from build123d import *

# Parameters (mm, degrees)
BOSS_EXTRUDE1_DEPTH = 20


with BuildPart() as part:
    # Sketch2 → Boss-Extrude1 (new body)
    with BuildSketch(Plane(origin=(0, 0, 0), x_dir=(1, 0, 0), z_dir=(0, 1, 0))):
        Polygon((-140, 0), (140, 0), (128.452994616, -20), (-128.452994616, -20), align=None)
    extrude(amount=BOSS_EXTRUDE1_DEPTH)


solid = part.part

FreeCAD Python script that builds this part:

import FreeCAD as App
import Part
import Sketcher
from FreeCAD import Vector
Q = App.Units.Quantity

doc = App.newDocument("Part")
params = doc.addObject("Spreadsheet::Sheet", "Params")
for row, (alias, value) in enumerate([
    ("sketch1_width", "280 mm"),
    ("pad1_length", "20 mm"),
], start=1):
    params.set(f"A{row}", alias)
    params.set(f"B{row}", "=" + value)
    params.setAlias(f"B{row}", alias)

body = doc.addObject("PartDesign::Body", "Body")

sketch1 = body.newObject("Sketcher::SketchObject", "Sketch")
sketch1.AttachmentSupport = (doc.getObject("XZ_Plane"), [""])
sketch1.MapMode = "FlatFace"
sketch1.addGeometry([
    Part.LineSegment(Vector(140, 0, 0), Vector(-140, 0, 0)),
    Part.LineSegment(Vector(-140, 0, 0), Vector(-128, 20, 0)),
    Part.LineSegment(Vector(-128, 20, 0), Vector(128, 20, 0)),
    Part.LineSegment(Vector(128, 20, 0), Vector(140, 0, 0)),
], False)
sketch1.addConstraint([
    Sketcher.Constraint("Coincident", 0, 2, 1, 1),
    Sketcher.Constraint("Coincident", 1, 2, 2, 1),
    Sketcher.Constraint("Coincident", 2, 2, 3, 1),
    Sketcher.Constraint("Coincident", 3, 2, 0, 1),
    Sketcher.Constraint("Horizontal", 0),
    Sketcher.Constraint("Horizontal", 2),
    Sketcher.Constraint("Symmetric", 0, 2, 3, 2, -1, 1),
    Sketcher.Constraint("Equal", 1, 3),
    Sketcher.Constraint("DistanceX", 0, 2, 0, 1, 280.0),
    Sketcher.Constraint("Angle", 1, Q("60 deg")),
    Sketcher.Constraint("DistanceY", -1, 1, 1, 2, 20.0),
])
sketch1.setExpression("Constraints[8]", "Params.sketch1_width")
pad1 = body.newObject("PartDesign::Pad", "Pad")
pad1.Profile = sketch1
pad1.setExpression("Length", "Params.pad1_length")
pad1.Reversed = True

doc.recompute()
